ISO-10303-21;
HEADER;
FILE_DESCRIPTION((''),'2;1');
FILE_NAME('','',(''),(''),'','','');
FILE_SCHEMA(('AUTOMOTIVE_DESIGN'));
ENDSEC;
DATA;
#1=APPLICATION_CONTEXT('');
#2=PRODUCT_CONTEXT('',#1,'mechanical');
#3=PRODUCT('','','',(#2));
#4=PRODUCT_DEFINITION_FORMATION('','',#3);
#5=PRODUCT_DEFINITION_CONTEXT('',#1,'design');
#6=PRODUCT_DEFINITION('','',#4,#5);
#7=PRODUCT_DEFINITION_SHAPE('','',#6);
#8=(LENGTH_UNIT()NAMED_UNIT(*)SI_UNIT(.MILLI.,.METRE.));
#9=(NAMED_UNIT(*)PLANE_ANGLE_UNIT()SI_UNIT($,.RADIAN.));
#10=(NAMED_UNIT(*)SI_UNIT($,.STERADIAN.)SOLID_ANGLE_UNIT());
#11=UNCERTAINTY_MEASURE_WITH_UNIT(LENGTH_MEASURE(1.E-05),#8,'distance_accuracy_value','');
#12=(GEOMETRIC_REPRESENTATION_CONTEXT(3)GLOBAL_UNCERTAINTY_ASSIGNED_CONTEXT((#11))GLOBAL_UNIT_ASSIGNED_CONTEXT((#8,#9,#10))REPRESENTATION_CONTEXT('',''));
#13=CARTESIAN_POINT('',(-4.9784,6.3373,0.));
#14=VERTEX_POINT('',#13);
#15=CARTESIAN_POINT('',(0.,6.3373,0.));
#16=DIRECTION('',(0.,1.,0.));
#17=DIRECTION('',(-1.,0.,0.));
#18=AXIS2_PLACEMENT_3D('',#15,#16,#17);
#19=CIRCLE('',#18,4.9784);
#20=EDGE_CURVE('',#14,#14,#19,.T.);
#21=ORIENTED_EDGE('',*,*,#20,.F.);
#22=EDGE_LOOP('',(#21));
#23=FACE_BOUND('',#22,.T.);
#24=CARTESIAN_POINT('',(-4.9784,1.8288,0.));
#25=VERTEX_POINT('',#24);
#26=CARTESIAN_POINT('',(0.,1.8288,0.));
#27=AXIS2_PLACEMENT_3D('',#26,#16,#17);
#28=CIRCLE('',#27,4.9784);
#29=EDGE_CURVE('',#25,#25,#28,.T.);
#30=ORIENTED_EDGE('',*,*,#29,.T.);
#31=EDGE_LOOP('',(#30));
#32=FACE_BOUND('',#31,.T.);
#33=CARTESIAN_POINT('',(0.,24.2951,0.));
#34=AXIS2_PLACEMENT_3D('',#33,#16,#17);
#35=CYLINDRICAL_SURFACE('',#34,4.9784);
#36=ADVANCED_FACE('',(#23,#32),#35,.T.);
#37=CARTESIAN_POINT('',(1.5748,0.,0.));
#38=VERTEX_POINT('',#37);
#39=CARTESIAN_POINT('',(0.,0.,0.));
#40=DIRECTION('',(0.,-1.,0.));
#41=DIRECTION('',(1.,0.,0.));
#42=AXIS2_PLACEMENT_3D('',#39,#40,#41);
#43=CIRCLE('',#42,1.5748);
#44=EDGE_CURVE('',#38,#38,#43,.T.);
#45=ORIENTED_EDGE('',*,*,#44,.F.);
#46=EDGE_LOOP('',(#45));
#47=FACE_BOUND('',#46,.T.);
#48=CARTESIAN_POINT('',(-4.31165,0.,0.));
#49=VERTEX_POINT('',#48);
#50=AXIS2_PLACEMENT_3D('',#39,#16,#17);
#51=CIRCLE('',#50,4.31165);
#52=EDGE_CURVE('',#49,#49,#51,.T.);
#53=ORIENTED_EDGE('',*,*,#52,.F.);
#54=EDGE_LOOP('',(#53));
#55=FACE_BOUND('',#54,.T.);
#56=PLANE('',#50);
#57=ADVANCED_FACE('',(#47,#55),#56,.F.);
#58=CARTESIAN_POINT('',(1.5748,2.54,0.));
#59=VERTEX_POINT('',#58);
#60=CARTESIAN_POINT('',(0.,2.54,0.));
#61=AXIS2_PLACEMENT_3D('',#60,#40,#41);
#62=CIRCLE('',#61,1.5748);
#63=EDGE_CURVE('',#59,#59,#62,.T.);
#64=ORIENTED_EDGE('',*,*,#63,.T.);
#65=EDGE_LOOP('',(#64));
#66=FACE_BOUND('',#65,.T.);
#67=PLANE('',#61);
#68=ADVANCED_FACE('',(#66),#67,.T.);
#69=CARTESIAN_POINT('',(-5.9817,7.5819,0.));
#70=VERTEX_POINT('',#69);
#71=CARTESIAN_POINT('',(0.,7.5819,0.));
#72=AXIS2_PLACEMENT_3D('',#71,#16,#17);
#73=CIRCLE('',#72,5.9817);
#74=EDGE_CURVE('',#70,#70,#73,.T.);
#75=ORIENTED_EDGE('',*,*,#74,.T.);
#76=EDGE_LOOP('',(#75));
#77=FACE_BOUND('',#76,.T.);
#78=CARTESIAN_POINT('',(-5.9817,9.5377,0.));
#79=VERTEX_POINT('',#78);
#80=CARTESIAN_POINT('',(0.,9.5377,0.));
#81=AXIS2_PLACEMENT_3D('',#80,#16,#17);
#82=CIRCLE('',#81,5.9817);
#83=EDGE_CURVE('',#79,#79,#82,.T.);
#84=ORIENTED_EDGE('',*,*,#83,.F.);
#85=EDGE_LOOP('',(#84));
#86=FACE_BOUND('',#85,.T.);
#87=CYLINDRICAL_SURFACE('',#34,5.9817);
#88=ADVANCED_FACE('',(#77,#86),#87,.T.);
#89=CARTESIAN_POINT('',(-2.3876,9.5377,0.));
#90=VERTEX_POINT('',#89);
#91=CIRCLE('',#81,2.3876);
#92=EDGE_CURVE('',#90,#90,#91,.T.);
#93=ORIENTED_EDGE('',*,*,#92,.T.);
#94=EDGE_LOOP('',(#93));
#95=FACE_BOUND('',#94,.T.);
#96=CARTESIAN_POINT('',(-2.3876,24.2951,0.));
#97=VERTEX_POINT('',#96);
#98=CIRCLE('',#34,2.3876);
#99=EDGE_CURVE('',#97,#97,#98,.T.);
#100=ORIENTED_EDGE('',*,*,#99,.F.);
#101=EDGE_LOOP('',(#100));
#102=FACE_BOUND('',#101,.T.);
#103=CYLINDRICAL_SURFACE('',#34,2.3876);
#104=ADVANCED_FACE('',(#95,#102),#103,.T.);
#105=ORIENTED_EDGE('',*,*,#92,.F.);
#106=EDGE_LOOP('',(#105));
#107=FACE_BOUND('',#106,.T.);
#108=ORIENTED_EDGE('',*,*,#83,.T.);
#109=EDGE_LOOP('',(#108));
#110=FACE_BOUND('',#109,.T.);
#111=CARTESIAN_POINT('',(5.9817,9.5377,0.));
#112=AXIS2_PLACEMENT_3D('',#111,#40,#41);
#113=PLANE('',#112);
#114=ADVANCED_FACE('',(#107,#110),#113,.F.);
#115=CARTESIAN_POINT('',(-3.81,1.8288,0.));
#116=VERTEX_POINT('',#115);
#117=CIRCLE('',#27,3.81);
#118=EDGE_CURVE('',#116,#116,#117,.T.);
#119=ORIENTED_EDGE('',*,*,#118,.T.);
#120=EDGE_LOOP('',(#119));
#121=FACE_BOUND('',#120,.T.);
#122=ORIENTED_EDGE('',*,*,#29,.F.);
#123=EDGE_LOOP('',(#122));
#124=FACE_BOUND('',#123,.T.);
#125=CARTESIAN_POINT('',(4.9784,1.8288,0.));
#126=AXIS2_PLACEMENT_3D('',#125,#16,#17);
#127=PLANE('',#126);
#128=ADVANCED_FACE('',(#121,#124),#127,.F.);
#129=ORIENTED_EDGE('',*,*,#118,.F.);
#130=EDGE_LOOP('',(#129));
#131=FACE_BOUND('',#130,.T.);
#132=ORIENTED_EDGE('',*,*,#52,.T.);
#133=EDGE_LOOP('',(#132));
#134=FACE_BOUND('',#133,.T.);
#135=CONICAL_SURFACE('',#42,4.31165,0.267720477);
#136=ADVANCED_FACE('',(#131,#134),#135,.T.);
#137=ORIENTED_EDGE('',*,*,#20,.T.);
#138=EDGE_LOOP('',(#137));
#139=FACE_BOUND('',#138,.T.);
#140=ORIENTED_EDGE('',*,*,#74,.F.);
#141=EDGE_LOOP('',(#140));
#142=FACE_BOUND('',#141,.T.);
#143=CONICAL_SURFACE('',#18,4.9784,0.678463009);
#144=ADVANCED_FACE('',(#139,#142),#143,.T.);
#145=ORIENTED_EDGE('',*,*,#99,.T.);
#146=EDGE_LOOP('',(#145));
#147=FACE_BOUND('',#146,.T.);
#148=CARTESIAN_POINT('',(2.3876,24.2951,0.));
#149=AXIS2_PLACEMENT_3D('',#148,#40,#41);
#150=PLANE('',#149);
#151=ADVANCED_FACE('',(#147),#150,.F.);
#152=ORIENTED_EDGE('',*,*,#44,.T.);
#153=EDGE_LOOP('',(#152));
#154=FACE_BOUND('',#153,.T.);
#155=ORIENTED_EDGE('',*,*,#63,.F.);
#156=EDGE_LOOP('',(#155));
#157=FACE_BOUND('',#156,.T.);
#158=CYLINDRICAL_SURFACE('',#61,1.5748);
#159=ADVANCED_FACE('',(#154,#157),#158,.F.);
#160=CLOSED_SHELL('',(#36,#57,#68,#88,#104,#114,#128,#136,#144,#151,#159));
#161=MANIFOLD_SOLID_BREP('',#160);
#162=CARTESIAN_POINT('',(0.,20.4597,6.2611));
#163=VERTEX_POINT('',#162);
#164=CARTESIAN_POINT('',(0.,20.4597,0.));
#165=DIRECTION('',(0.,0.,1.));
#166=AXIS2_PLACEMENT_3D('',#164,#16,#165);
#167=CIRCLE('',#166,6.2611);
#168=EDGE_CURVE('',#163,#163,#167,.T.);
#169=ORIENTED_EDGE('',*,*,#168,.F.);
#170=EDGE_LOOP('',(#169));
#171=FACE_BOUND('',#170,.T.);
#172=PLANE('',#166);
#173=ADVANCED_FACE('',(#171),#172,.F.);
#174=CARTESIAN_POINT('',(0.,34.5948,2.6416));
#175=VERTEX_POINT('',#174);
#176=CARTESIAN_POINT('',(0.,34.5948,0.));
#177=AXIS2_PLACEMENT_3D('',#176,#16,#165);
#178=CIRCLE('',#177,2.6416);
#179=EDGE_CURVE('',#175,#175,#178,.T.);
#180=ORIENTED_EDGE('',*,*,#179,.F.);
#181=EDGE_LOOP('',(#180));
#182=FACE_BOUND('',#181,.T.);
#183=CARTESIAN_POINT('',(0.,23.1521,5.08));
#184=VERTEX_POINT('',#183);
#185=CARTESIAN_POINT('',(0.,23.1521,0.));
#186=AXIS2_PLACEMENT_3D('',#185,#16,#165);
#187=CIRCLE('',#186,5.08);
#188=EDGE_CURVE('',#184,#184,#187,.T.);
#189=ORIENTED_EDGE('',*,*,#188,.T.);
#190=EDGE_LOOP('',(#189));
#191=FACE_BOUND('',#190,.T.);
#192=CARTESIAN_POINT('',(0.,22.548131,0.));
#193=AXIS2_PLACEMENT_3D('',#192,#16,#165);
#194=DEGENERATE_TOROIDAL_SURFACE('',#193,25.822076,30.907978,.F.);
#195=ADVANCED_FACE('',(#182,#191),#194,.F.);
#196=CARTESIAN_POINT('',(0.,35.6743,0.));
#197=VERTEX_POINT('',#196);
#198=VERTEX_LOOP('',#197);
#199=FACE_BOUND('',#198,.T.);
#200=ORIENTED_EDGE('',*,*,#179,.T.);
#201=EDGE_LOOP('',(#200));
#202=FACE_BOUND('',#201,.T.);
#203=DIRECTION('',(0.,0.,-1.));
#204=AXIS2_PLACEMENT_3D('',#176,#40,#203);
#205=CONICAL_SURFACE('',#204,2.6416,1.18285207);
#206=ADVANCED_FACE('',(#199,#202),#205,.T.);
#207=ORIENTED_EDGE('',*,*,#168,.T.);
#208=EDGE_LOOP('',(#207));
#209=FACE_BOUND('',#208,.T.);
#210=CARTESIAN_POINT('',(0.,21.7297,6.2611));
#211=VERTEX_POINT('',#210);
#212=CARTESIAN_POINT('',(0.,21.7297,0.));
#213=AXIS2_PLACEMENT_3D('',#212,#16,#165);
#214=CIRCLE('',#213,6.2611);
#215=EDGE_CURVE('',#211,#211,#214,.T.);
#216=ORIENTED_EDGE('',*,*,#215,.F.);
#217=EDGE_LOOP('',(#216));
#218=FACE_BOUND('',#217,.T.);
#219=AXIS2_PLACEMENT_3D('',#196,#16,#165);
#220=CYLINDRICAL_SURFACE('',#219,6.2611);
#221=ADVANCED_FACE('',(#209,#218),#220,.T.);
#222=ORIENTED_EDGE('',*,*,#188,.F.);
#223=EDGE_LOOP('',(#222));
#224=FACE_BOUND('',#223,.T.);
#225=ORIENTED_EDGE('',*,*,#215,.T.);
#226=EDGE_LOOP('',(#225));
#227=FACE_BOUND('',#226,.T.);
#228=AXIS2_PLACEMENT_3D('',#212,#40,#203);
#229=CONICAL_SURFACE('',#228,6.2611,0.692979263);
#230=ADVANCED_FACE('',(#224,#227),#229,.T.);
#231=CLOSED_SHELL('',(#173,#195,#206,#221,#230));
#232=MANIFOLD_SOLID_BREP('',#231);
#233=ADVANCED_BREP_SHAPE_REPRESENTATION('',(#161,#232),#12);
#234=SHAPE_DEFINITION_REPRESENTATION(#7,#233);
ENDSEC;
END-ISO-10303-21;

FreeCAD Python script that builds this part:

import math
import FreeCAD as App
import Part
import Sketcher
from FreeCAD import Vector
Q = App.Units.Quantity

doc = App.newDocument("Part")
body = doc.addObject("PartDesign::Body", "Body")

# Sketch on XY plane
sketch1 = body.newObject("Sketcher::SketchObject", "Sketch")
sketch1.AttachmentSupport = (doc.getObject("XY_Plane"), [""])
sketch1.MapMode = "FlatFace"
sketch1.addGeometry(Part.LineSegment(Vector(0, 0, 0), Vector(4.3, 0, 0)), False)
sketch1.addGeometry(Part.LineSegment(Vector(4.3, 0, 0), Vector(3.8, 1.8, 0)), False)
sketch1.addGeometry(Part.LineSegment(Vector(3.8, 1.8, 0), Vector(5, 1.8, 0)), False)
sketch1.addGeometry(Part.LineSegment(Vector(5, 1.8, 0), Vector(5, 6.3, 0)), False)
sketch1.addGeometry(Part.LineSegment(Vector(5, 6.3, 0), Vector(6, 7.6, 0)), False)
sketch1.addGeometry(Part.LineSegment(Vector(6, 7.6, 0), Vector(6, 9.5, 0)), False)
sketch1.addGeometry(Part.LineSegment(Vector(6, 9.5, 0), Vector(2.4, 9.5, 0)), False)
sketch1.addGeometry(Part.LineSegment(Vector(2.4, 9.5, 0), Vector(2.4, 24.3, 0)), False)
sketch1.addGeometry(Part.LineSegment(Vector(2.4, 24.3, 0), Vector(0, 24.3, 0)), False)
sketch1.addGeometry(Part.LineSegment(Vector(0, 24.3, 0), Vector(0, 0, 0)), False)
sketch1.addConstraint(Sketcher.Constraint("Coincident", 0, 2, 1, 1))
sketch1.addConstraint(Sketcher.Constraint("Coincident", 1, 2, 2, 1))
sketch1.addConstraint(Sketcher.Constraint("Coincident", 2, 2, 3, 1))
sketch1.addConstraint(Sketcher.Constraint("Coincident", 3, 2, 4, 1))
sketch1.addConstraint(Sketcher.Constraint("Coincident", 4, 2, 5, 1))
sketch1.addConstraint(Sketcher.Constraint("Coincident", 5, 2, 6, 1))
sketch1.addConstraint(Sketcher.Constraint("Coincident", 6, 2, 7, 1))
sketch1.addConstraint(Sketcher.Constraint("Coincident", 7, 2, 8, 1))
sketch1.addConstraint(Sketcher.Constraint("Coincident", 8, 2, 9, 1))
sketch1.addConstraint(Sketcher.Constraint("Coincident", 9, 2, 0, 1))
sketch1.addConstraint(Sketcher.Constraint("Horizontal", 0))
sketch1.addConstraint(Sketcher.Constraint("Horizontal", 2))
sketch1.addConstraint(Sketcher.Constraint("Vertical", 3))
sketch1.addConstraint(Sketcher.Constraint("Vertical", 5))
sketch1.addConstraint(Sketcher.Constraint("Horizontal", 6))
sketch1.addConstraint(Sketcher.Constraint("Vertical", 7))
sketch1.addConstraint(Sketcher.Constraint("Horizontal", 8))
sketch1.addConstraint(Sketcher.Constraint("Vertical", 9))
sketch1.addConstraint(Sketcher.Constraint("Coincident", 9, 2, -1, 1))
sketch1.addConstraint(Sketcher.Constraint("DistanceX", 2, 1, 2, 2, Q("0.046 in")))
sketch1.addConstraint(Sketcher.Constraint("DistanceX", 8, 2, 8, 1, Q("0.094 in")))
sketch1.addConstraint(Sketcher.Constraint("DistanceY", 5, 1, 5, 2, Q("0.077 in")))
sketch1.addConstraint(Sketcher.Constraint("DistanceY", 7, 1, 7, 2, Q("0.581 in")))
sketch1.addConstraint(Sketcher.Constraint("DistanceX", -1, 1, 1, 2, Q("0.15 in")))
sketch1.addConstraint(Sketcher.Constraint("DistanceX", 6, 2, 6, 1, Q("0.1415 in")))
sketch1.addConstraint(Sketcher.Constraint("DistanceY", 3, 1, 3, 2, Q("0.1775 in")))
sketch1.addConstraint(Sketcher.Constraint("DistanceY", 9, 2, 9, 1, Q("0.9565 in")))
sketch1.addConstraint(Sketcher.Constraint("DistanceY", -1, 1, 1, 2, Q("0.072 in")))
sketch1.addConstraint(Sketcher.Constraint("DistanceX", 0, 1, 0, 2, 4.31165))
revolution = body.newObject("PartDesign::Revolution", "Revolution")
revolution.Profile = sketch1
revolution.ReferenceAxis = (sketch1, ["V_Axis"])
revolution.Angle = 360

# Sketch on XZ plane
sketch2 = body.newObject("Sketcher::SketchObject", "Sketch001")
sketch2.AttachmentSupport = (doc.getObject("XZ_Plane"), [""])
sketch2.MapMode = "FlatFace"
sketch2.addGeometry(Part.Circle(Vector(0, 0, 0), Vector(0, 0, 1), 1.6), False)
sketch2.addConstraint(Sketcher.Constraint("Coincident", 0, 3, -1, 1))
sketch2.addConstraint(Sketcher.Constraint("Diameter", 0, Q("0.124 in")))
pocket1 = body.newObject("PartDesign::Pocket", "Pocket")
pocket1.Profile = sketch2
pocket1.Length = Q("0.1 in")
body2 = doc.addObject("PartDesign::Body", "Body001")

# Sketch on XY plane
sketch3 = body2.newObject("Sketcher::SketchObject", "Sketch002")
sketch3.AttachmentSupport = (doc.getObject("XY_Plane001"), [""])
sketch3.MapMode = "FlatFace"
sketch3.addGeometry(Part.LineSegment(Vector(2.6, 34.6, 0), Vector(0, 35.7, 0)), False)
sketch3.addGeometry(Part.LineSegment(Vector(0, 35.7, 0), Vector(0, 20.5, 0)), False)
sketch3.addGeometry(Part.LineSegment(Vector(0, 20.5, 0), Vector(6.3, 20.5, 0)), False)
sketch3.addGeometry(Part.LineSegment(Vector(6.3, 20.5, 0), Vector(6.3, 21.7, 0)), False)
sketch3.addGeometry(Part.LineSegment(Vector(6.3, 21.7, 0), Vector(5.1, 23.2, 0)), False)
sketch3.addGeometry(Part.ArcOfCircle(Part.Circle(Vector(-25.8, 22.5, 0), Vector(0, 0, 1), 30.9), math.radians(1), math.radians(23)), False)
sketch3.addConstraint(Sketcher.Constraint("Coincident", 0, 2, 1, 1))
sketch3.addConstraint(Sketcher.Constraint("Coincident", 1, 2, 2, 1))
sketch3.addConstraint(Sketcher.Constraint("Coincident", 2, 2, 3, 1))
sketch3.addConstraint(Sketcher.Constraint("Coincident", 3, 2, 4, 1))
sketch3.addConstraint(Sketcher.Constraint("Coincident", 4, 2, 5, 1))
sketch3.addConstraint(Sketcher.Constraint("Coincident", 5, 2, 0, 1))
sketch3.addConstraint(Sketcher.Constraint("Vertical", 1))
sketch3.addConstraint(Sketcher.Constraint("Horizontal", 2))
sketch3.addConstraint(Sketcher.Constraint("Vertical", 3))
sketch3.addConstraint(Sketcher.Constraint("PointOnObject", 0, 2, -2))
sketch3.addConstraint(Sketcher.Constraint("DistanceY", 3, 1, 3, 2, Q("0.05 in")))
sketch3.addConstraint(Sketcher.Constraint("DistanceX", -1, 1, 4, 2, Q("0.2 in")))
sketch3.addConstraint(Sketcher.Constraint("DistanceY", 1, 2, 1, 1, Q("0.599 in")))
sketch3.addConstraint(Sketcher.Constraint("DistanceX", 2, 1, 2, 2, Q("0.2465 in")))
sketch3.addConstraint(Sketcher.Constraint("DistanceX", -1, 1, 5, 2, Q("0.104 in")))
sketch3.addConstraint(Sketcher.Constraint("DistanceY", -1, 1, 5, 2, Q("1.362 in")))
sketch3.addConstraint(Sketcher.Constraint("DistanceY", 3, 2, 4, 2, Q("0.056 in")))
sketch3.addConstraint(Sketcher.Constraint("DistanceY", -1, 1, 0, 2, Q("1.4045 in")))
sketch3.addConstraint(Sketcher.Constraint("Radius", 5, 30.907978))
revolution2 = body2.newObject("PartDesign::Revolution", "Revolution001")
revolution2.Profile = sketch3
revolution2.ReferenceAxis = (sketch3, ["V_Axis"])
revolution2.Angle = 360

doc.recompute()
